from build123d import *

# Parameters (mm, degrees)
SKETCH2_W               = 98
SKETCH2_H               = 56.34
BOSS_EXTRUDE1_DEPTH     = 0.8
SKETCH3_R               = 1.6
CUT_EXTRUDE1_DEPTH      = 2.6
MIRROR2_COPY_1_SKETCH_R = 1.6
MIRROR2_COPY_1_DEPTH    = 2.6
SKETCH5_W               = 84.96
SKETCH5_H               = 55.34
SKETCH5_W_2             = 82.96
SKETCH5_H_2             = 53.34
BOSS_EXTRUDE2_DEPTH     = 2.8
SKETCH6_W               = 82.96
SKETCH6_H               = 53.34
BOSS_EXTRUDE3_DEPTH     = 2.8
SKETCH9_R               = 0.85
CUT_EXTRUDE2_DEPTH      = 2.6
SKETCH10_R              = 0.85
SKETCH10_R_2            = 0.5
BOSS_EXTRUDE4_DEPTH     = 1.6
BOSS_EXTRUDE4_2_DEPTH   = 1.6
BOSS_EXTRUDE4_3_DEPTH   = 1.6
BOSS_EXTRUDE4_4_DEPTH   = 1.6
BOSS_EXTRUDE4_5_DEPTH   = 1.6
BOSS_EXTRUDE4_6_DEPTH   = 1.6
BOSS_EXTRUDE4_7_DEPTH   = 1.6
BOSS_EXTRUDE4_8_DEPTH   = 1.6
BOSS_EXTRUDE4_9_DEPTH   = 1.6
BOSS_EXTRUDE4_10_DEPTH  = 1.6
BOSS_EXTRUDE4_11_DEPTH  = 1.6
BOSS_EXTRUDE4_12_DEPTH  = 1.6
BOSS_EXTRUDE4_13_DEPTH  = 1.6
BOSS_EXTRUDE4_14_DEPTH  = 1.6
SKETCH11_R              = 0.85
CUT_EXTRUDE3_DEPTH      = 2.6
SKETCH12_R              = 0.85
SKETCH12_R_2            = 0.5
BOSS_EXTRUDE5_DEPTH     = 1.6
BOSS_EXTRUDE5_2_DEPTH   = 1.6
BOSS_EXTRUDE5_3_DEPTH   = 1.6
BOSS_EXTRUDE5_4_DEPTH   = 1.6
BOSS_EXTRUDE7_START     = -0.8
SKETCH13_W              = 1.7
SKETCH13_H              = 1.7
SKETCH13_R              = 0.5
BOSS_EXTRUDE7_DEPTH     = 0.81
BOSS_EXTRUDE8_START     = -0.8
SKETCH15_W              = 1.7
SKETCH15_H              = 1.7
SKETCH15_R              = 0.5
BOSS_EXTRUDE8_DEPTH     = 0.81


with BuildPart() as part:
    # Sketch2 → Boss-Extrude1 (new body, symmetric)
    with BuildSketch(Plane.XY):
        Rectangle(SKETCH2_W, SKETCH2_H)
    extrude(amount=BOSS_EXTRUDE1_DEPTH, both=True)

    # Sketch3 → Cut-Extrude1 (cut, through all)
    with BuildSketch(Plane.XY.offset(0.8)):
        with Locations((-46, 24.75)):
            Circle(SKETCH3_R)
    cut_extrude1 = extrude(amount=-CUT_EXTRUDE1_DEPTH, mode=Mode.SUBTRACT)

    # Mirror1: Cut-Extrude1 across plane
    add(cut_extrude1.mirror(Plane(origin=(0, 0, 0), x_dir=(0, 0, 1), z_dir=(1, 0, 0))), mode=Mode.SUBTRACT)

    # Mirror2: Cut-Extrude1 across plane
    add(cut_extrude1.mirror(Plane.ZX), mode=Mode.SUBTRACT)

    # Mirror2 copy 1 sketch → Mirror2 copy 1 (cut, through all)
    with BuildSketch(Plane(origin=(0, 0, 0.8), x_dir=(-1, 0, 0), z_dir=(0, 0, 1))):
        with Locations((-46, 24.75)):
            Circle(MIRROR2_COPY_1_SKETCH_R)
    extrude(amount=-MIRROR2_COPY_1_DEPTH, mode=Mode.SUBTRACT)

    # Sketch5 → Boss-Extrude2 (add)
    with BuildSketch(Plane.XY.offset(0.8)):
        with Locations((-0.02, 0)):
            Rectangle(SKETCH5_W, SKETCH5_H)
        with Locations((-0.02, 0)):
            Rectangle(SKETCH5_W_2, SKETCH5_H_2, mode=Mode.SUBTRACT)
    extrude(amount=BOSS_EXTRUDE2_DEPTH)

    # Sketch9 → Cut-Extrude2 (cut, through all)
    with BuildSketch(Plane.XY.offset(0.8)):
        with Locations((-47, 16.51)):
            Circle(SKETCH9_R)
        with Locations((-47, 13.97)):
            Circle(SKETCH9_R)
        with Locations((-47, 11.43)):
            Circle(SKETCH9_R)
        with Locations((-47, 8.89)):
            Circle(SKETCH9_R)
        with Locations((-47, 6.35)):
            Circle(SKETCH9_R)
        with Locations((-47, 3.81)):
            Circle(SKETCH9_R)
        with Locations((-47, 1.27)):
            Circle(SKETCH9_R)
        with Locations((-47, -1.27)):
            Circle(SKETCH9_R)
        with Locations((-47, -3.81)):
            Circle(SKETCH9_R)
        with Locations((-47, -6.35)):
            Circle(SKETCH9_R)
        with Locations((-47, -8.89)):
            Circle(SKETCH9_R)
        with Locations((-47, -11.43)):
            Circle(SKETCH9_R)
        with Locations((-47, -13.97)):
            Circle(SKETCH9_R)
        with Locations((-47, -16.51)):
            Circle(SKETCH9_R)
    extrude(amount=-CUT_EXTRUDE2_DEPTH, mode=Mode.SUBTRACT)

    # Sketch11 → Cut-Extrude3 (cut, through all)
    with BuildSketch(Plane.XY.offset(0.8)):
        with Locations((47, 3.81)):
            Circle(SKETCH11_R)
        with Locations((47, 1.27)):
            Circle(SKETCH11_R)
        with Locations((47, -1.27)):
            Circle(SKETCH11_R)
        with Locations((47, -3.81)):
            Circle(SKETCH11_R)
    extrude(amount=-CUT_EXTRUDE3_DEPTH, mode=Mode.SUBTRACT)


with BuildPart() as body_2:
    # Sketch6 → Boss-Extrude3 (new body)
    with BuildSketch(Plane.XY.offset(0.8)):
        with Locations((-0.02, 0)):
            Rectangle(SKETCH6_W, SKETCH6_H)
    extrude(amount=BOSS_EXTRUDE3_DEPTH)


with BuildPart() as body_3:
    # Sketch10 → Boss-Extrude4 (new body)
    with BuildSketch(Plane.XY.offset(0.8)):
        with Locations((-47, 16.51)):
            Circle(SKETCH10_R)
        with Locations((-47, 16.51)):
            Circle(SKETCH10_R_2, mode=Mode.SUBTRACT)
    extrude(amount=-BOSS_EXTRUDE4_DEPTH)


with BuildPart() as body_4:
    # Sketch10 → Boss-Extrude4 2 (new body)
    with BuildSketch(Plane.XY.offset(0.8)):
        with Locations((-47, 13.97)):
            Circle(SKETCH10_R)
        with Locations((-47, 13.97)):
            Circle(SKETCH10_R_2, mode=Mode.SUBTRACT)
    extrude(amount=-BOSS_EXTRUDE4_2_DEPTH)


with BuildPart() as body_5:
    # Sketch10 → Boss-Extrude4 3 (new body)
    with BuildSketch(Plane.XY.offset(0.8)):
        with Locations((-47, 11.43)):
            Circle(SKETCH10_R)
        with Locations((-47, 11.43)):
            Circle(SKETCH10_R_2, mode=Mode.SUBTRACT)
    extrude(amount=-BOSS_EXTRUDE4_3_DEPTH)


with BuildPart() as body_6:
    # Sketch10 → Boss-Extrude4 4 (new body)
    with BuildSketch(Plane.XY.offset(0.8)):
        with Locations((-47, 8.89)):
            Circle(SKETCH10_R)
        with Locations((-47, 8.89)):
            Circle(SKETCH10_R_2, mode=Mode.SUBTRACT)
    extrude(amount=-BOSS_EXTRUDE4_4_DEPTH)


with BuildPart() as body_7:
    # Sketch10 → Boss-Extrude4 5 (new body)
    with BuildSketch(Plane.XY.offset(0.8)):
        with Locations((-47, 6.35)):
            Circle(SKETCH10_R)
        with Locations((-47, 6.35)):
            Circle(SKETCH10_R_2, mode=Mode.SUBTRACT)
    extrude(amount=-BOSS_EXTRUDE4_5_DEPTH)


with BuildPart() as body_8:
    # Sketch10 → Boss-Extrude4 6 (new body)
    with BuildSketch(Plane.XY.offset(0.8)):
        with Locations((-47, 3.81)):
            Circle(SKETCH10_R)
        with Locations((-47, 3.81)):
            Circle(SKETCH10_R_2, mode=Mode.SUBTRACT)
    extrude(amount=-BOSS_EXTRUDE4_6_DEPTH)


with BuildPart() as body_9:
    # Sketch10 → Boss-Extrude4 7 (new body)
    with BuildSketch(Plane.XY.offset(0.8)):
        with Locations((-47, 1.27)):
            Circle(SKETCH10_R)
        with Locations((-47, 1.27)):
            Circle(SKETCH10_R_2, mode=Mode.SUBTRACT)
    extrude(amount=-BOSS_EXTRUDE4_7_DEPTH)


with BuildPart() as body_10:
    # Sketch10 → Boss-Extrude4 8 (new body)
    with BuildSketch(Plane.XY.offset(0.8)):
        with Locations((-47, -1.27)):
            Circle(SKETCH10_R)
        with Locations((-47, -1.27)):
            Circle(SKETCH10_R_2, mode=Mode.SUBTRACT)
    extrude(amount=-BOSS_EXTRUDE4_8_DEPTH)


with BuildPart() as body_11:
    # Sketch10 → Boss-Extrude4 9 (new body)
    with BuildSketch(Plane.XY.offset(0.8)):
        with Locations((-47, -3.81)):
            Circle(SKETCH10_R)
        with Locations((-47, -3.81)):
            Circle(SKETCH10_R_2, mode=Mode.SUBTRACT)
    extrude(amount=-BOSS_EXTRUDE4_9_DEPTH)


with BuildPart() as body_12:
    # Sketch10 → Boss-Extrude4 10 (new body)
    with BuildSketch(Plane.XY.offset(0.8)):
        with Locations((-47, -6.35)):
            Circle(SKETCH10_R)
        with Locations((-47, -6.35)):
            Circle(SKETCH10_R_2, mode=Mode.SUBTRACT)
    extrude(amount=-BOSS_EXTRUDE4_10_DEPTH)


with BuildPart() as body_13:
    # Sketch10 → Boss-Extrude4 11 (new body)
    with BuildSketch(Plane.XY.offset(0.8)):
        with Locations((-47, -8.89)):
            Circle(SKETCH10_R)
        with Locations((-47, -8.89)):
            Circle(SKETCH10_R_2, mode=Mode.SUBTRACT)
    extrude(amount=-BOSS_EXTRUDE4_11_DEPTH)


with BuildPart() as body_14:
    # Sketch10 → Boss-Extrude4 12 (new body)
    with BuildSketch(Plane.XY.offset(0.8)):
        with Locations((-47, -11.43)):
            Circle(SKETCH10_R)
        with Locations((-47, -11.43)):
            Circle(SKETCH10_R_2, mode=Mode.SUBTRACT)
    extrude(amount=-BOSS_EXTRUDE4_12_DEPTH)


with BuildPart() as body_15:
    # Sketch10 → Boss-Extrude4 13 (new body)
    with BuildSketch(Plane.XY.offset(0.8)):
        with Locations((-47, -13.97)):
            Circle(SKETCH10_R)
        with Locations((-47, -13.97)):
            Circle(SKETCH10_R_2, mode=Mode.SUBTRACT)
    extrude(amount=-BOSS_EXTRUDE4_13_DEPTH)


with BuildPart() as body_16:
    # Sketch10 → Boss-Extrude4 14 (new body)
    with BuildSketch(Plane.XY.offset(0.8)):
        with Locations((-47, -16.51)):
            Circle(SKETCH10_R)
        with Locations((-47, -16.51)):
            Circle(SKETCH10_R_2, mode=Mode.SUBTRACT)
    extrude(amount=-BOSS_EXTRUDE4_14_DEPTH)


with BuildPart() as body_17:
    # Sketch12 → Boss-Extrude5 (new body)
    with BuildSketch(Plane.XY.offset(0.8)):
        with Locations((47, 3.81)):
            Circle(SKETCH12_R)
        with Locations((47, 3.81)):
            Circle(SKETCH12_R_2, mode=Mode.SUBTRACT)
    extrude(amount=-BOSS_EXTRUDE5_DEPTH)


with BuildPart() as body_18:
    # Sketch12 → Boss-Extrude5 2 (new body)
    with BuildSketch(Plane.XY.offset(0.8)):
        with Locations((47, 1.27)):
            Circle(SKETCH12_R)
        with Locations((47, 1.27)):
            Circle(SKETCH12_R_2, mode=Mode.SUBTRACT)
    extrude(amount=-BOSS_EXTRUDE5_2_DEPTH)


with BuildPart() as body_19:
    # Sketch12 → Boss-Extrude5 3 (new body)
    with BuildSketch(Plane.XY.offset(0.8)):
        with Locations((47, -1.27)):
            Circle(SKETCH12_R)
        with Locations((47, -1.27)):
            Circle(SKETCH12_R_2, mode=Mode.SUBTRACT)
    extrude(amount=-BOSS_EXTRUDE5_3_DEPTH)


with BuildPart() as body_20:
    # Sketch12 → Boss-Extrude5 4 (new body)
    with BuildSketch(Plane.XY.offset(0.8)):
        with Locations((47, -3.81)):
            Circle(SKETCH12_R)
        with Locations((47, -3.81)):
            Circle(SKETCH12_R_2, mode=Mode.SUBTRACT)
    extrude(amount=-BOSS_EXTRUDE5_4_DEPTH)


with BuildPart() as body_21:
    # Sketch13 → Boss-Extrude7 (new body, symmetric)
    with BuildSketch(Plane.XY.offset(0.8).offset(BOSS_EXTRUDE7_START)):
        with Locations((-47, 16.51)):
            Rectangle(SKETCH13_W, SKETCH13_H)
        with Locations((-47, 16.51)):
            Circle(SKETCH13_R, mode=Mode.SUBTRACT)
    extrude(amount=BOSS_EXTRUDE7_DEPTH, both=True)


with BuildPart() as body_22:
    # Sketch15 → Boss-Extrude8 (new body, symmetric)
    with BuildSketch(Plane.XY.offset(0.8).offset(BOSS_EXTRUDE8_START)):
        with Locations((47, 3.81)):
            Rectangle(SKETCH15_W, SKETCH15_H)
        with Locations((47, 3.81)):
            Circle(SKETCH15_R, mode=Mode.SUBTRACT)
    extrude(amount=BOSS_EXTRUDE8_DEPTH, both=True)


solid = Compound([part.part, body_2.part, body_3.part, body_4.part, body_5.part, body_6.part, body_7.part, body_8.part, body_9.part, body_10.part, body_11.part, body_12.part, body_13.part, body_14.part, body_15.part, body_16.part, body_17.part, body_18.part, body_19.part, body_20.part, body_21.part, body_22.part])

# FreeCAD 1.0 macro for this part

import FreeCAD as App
import Part
import Sketcher
from FreeCAD import Vector


def add_polygon(sketch, points):
    """Adds a closed chain of lines whose ends are joined by coincident constraints."""
    first, n = sketch.GeometryCount, len(points)
    for a, b in zip(points, points[1:] + points[:1]):
        sketch.addGeometry(Part.LineSegment(App.Vector(*a, 0), App.Vector(*b, 0)), False)
    for i in range(n):
        sketch.addConstraint(Sketcher.Constraint("Coincident", first + i, 2, first + (i + 1) % n, 1))

doc = App.newDocument("Part")
body = doc.addObject("PartDesign::Body", "Body")

# Sketch on XY plane
sketch1 = body.newObject("Sketcher::SketchObject", "Sketch")
sketch1.AttachmentSupport = (doc.getObject("XY_Plane"), [""])
sketch1.MapMode = "FlatFace"
add_polygon(sketch1, [(-49, 28), (-49, -28), (49, -28), (49, 28)])  # lines 0-3
sketch1.addConstraint(Sketcher.Constraint("Vertical", 0))
sketch1.addConstraint(Sketcher.Constraint("Horizontal", 1))
sketch1.addConstraint(Sketcher.Constraint("Vertical", 2))
sketch1.addConstraint(Sketcher.Constraint("Horizontal", 3))
sketch1.addConstraint(Sketcher.Constraint("Symmetric", 0, 2, 2, 2, -1, 1))
sketch1.addConstraint(Sketcher.Constraint("DistanceX", 1, 1, 1, 2, 98.0))
sketch1.addConstraint(Sketcher.Constraint("DistanceY", 0, 2, 0, 1, 56.34))
pad1 = body.newObject("PartDesign::Pad", "Pad")
pad1.Profile = sketch1
pad1.Length = 1.6
pad1.Midplane = True

# Sketch on XY plane
sketch2 = body.newObject("Sketcher::SketchObject", "Sketch001")
sketch2.AttachmentSupport = (doc.getObject("XY_Plane"), [""])
sketch2.MapMode = "FlatFace"
sketch2.AttachmentOffset = App.Placement(Vector(0, 0, 0.8), App.Rotation())
sketch2.addGeometry(Part.Circle(Vector(-46, 24.8, 0), Vector(0, 0, 1), 1.6), False)
sketch2.addConstraint(Sketcher.Constraint("Diameter", 0, 3.2))
sketch2.addConstraint(Sketcher.Constraint("DistanceX", 0, 3, -1, 1, 46.0))
sketch2.addConstraint(Sketcher.Constraint("DistanceY", -1, 1, 0, 3, 24.75))
pocket1 = body.newObject("PartDesign::Pocket", "Pocket")
pocket1.Profile = sketch2
pocket1.Type = "ThroughAll"
doc.recompute()

mirrored = body.newObject("PartDesign::Mirrored", "Mirrored")
mirrored.Originals = [pocket1]
mirrored.MirrorPlane = (doc.getObject("YZ_Plane"), [""])
body.Tip = mirrored
doc.recompute()

mirrored2 = body.newObject("PartDesign::Mirrored", "Mirrored001")
mirrored2.Originals = [pocket1]
mirrored2.MirrorPlane = (doc.getObject("XZ_Plane"), [""])
body.Tip = mirrored2

# Sketch on XY plane
sketch3 = body.newObject("Sketcher::SketchObject", "Sketch002")
sketch3.AttachmentSupport = (doc.getObject("XY_Plane"), [""])
sketch3.MapMode = "FlatFace"
sketch3.AttachmentOffset = App.Placement(Vector(0, 0, 0.8), App.Rotation())
sketch3.addGeometry(Part.Circle(Vector(46, -24.8, 0), Vector(0, 0, 1), 1.6), False)
sketch3.addConstraint(Sketcher.Constraint("Diameter", 0, 3.2))
sketch3.addConstraint(Sketcher.Constraint("DistanceX", -1, 1, 0, 3, 46.0))
sketch3.addConstraint(Sketcher.Constraint("DistanceY", 0, 3, -1, 1, 24.75))
pocket2 = body.newObject("PartDesign::Pocket", "Pocket001")
pocket2.Profile = sketch3
pocket2.Type = "ThroughAll"

# Sketch on XY plane
sketch4 = body.newObject("Sketcher::SketchObject", "Sketch003")
sketch4.AttachmentSupport = (doc.getObject("XY_Plane"), [""])
sketch4.MapMode = "FlatFace"
sketch4.AttachmentOffset = App.Placement(Vector(0, 0, 0.8), App.Rotation())
add_polygon(sketch4, [(-42, 28), (-42, -28), (42, -28), (42, 28)])  # lines 0-3
add_polygon(sketch4, [(41, -27), (-42, -27), (-42, 27), (41, 27)])  # lines 4-7
sketch4.addConstraint(Sketcher.Constraint("Vertical", 0))
sketch4.addConstraint(Sketcher.Constraint("Horizontal", 1))
sketch4.addConstraint(Sketcher.Constraint("Vertical", 2))
sketch4.addConstraint(Sketcher.Constraint("Horizontal", 3))
sketch4.addConstraint(Sketcher.Constraint("Horizontal", 4))
sketch4.addConstraint(Sketcher.Constraint("Vertical", 5))
sketch4.addConstraint(Sketcher.Constraint("Horizontal", 6))
sketch4.addConstraint(Sketcher.Constraint("Vertical", 7))
sketch4.addConstraint(Sketcher.Constraint("DistanceX", 0, 2, 4, 2, 1.0))
sketch4.addConstraint(Sketcher.Constraint("DistanceY", 0, 2, 4, 2, 1.0))
sketch4.addConstraint(Sketcher.Constraint("DistanceY", 5, 2, 3, 2, 1.0))
sketch4.addConstraint(Sketcher.Constraint("DistanceX", 6, 2, 2, 2, 1.0))
sketch4.addConstraint(Sketcher.Constraint("DistanceX", 1, 1, 1, 2, 84.96))
sketch4.addConstraint(Sketcher.Constraint("DistanceY", 0, 2, 0, 1, 55.34))
sketch4.addConstraint(Sketcher.Constraint("DistanceX", 0, 2, -1, 1, 42.5))
sketch4.addConstraint(Sketcher.Constraint("DistanceY", 0, 2, -1, 1, 27.67))
pad2 = body.newObject("PartDesign::Pad", "Pad001")
pad2.Profile = sketch4
pad2.Length = 2.8

# Sketch on XY plane
sketch5 = body.newObject("Sketcher::SketchObject", "Sketch004")
sketch5.AttachmentSupport = (doc.getObject("XY_Plane"), [""])
sketch5.MapMode = "FlatFace"
sketch5.AttachmentOffset = App.Placement(Vector(0, 0, 0.8), App.Rotation())
sketch5.addGeometry(Part.Circle(Vector(-47, 16.5, 0), Vector(0, 0, 1), 0.8), False)
sketch5.addGeometry(Part.Circle(Vector(-47, 14, 0), Vector(0, 0, 1), 0.8), False)
sketch5.addGeometry(Part.Circle(Vector(-47, 11.4, 0), Vector(0, 0, 1), 0.8), False)
sketch5.addGeometry(Part.Circle(Vector(-47, 8.9, 0), Vector(0, 0, 1), 0.8), False)
sketch5.addGeometry(Part.Circle(Vector(-47, 6.3, 0), Vector(0, 0, 1), 0.8), False)
sketch5.addGeometry(Part.Circle(Vector(-47, 3.8, 0), Vector(0, 0, 1), 0.8), False)
sketch5.addGeometry(Part.Circle(Vector(-47, 1.3, 0), Vector(0, 0, 1), 0.8), False)
sketch5.addGeometry(Part.Circle(Vector(-47, -1.3, 0), Vector(0, 0, 1), 0.8), False)
sketch5.addGeometry(Part.Circle(Vector(-47, -3.8, 0), Vector(0, 0, 1), 0.8), False)
sketch5.addGeometry(Part.Circle(Vector(-47, -6.3, 0), Vector(0, 0, 1), 0.8), False)
sketch5.addGeometry(Part.Circle(Vector(-47, -8.9, 0), Vector(0, 0, 1), 0.8), False)
sketch5.addGeometry(Part.Circle(Vector(-47, -11.4, 0), Vector(0, 0, 1), 0.8), False)
sketch5.addGeometry(Part.Circle(Vector(-47, -14, 0), Vector(0, 0, 1), 0.8), False)
sketch5.addGeometry(Part.Circle(Vector(-47, -16.5, 0), Vector(0, 0, 1), 0.8), False)
sketch5.addConstraint(Sketcher.Constraint("Equal", 0, 1))
sketch5.addConstraint(Sketcher.Constraint("Equal", 1, 2))
sketch5.addConstraint(Sketcher.Constraint("Equal", 2, 3))
sketch5.addConstraint(Sketcher.Constraint("Equal", 3, 4))
sketch5.addConstraint(Sketcher.Constraint("Equal", 4, 5))
sketch5.addConstraint(Sketcher.Constraint("Equal", 5, 6))
sketch5.addConstraint(Sketcher.Constraint("Equal", 6, 7))
sketch5.addConstraint(Sketcher.Constraint("Equal", 7, 8))
sketch5.addConstraint(Sketcher.Constraint("Equal", 8, 9))
sketch5.addConstraint(Sketcher.Constraint("Equal", 9, 10))
sketch5.addConstraint(Sketcher.Constraint("Equal", 10, 11))
sketch5.addConstraint(Sketcher.Constraint("Equal", 11, 12))
sketch5.addConstraint(Sketcher.Constraint("Equal", 12, 13))
sketch5.addConstraint(Sketcher.Constraint("Symmetric", 6, 3, 7, 3, -1))
sketch5.addConstraint(Sketcher.Constraint("Symmetric", 5, 3, 8, 3, -1))
sketch5.addConstraint(Sketcher.Constraint("Symmetric", 4, 3, 9, 3, -1))
sketch5.addConstraint(Sketcher.Constraint("Symmetric", 3, 3, 10, 3, -1))
sketch5.addConstraint(Sketcher.Constraint("Symmetric", 2, 3, 11, 3, -1))
sketch5.addConstraint(Sketcher.Constraint("Symmetric", 1, 3, 12, 3, -1))
sketch5.addConstraint(Sketcher.Constraint("Symmetric", 0, 3, 13, 3, -1))
sketch5.addConstraint(Sketcher.Constraint("Vertical", 0, 3, 1, 3))
sketch5.addConstraint(Sketcher.Constraint("Vertical", 1, 3, 2, 3))
sketch5.addConstraint(Sketcher.Constraint("Vertical", 2, 3, 3, 3))
sketch5.addConstraint(Sketcher.Constraint("Vertical", 3, 3, 4, 3))
sketch5.addConstraint(Sketcher.Constraint("Vertical", 4, 3, 5, 3))
sketch5.addConstraint(Sketcher.Constraint("Vertical", 5, 3, 6, 3))
sketch5.addConstraint(Sketcher.Constraint("Diameter", 0, 1.7))
sketch5.addConstraint(Sketcher.Constraint("DistanceX", 0, 3, -1, 1, 47.0))
sketch5.addConstraint(Sketcher.Constraint("DistanceY", 5, 3, 0, 3, 12.7))
sketch5.addConstraint(Sketcher.Constraint("DistanceY", 6, 3, 1, 3, 12.7))
sketch5.addConstraint(Sketcher.Constraint("DistanceY", 7, 3, 2, 3, 12.7))
sketch5.addConstraint(Sketcher.Constraint("DistanceY", 8, 3, 3, 3, 12.7))
sketch5.addConstraint(Sketcher.Constraint("DistanceY", 9, 3, 4, 3, 12.7))
sketch5.addConstraint(Sketcher.Constraint("DistanceY", -1, 1, 0, 3, 16.51))
sketch5.addConstraint(Sketcher.Constraint("DistanceY", -1, 1, 1, 3, 13.97))
pocket3 = body.newObject("PartDesign::Pocket", "Pocket002")
pocket3.Profile = sketch5
pocket3.Type = "ThroughAll"

# Sketch on XY plane
sketch6 = body.newObject("Sketcher::SketchObject", "Sketch005")
sketch6.AttachmentSupport = (doc.getObject("XY_Plane"), [""])
sketch6.MapMode = "FlatFace"
sketch6.AttachmentOffset = App.Placement(Vector(0, 0, 0.8), App.Rotation())
sketch6.addGeometry(Part.Circle(Vector(47, 3.8, 0), Vector(0, 0, 1), 0.8), False)
sketch6.addGeometry(Part.Circle(Vector(47, 1.3, 0), Vector(0, 0, 1), 0.8), False)
sketch6.addGeometry(Part.Circle(Vector(47, -1.3, 0), Vector(0, 0, 1), 0.8), False)
sketch6.addGeometry(Part.Circle(Vector(47, -3.8, 0), Vector(0, 0, 1), 0.8), False)
sketch6.addConstraint(Sketcher.Constraint("Equal", 0, 1))
sketch6.addConstraint(Sketcher.Constraint("Equal", 1, 2))
sketch6.addConstraint(Sketcher.Constraint("Equal", 2, 3))
sketch6.addConstraint(Sketcher.Constraint("Symmetric", 1, 3, 2, 3, -1))
sketch6.addConstraint(Sketcher.Constraint("Symmetric", 0, 3, 3, 3, -1))
sketch6.addConstraint(Sketcher.Constraint("Vertical", 0, 3, 1, 3))
sketch6.addConstraint(Sketcher.Constraint("Diameter", 0, 1.7))
sketch6.addConstraint(Sketcher.Constraint("DistanceX", -1, 1, 0, 3, 47.0))
sketch6.addConstraint(Sketcher.Constraint("DistanceY", -1, 1, 0, 3, 3.81))
sketch6.addConstraint(Sketcher.Constraint("DistanceY", -1, 1, 1, 3, 1.27))
pocket4 = body.newObject("PartDesign::Pocket", "Pocket003")
pocket4.Profile = sketch6
pocket4.Type = "ThroughAll"
body2 = doc.addObject("PartDesign::Body", "Body001")

# Sketch on XY plane
sketch7 = body2.newObject("Sketcher::SketchObject", "Sketch006")
sketch7.AttachmentSupport = (doc.getObject("XY_Plane001"), [""])
sketch7.MapMode = "FlatFace"
sketch7.AttachmentOffset = App.Placement(Vector(0, 0, 0.8), App.Rotation())
add_polygon(sketch7, [(-42, 27), (-42, -27), (41, -27), (41, 27)])  # lines 0-3
sketch7.addConstraint(Sketcher.Constraint("Vertical", 0))
sketch7.addConstraint(Sketcher.Constraint("Horizontal", 1))
sketch7.addConstraint(Sketcher.Constraint("Vertical", 2))
sketch7.addConstraint(Sketcher.Constraint("Horizontal", 3))
sketch7.addConstraint(Sketcher.Constraint("DistanceX", 1, 1, 1, 2, 82.96))
sketch7.addConstraint(Sketcher.Constraint("DistanceY", 0, 2, 0, 1, 53.34))
sketch7.addConstraint(Sketcher.Constraint("DistanceX", 0, 2, -1, 1, 41.5))
sketch7.addConstraint(Sketcher.Constraint("DistanceY", 0, 2, -1, 1, 26.67))
pad3 = body2.newObject("PartDesign::Pad", "Pad002")
pad3.Profile = sketch7
pad3.Length = 2.8
body3 = doc.addObject("PartDesign::Body", "Body002")

# Sketch on XY plane
sketch8 = body3.newObject("Sketcher::SketchObject", "Sketch007")
sketch8.AttachmentSupport = (doc.getObject("XY_Plane002"), [""])
sketch8.MapMode = "FlatFace"
sketch8.AttachmentOffset = App.Placement(Vector(0, 0, 0.8), App.Rotation())
sketch8.addGeometry(Part.Circle(Vector(-47, 16.5, 0), Vector(0, 0, 1), 0.8), False)
sketch8.addGeometry(Part.Circle(Vector(-47, 16.5, 0), Vector(0, 0, 1), 0.5), False)
sketch8.addConstraint(Sketcher.Constraint("Coincident", 1, 3, 0, 3))
sketch8.addConstraint(Sketcher.Constraint("Diameter", 1, 1.0))
sketch8.addConstraint(Sketcher.Constraint("Diameter", 0, 1.7))
sketch8.addConstraint(Sketcher.Constraint("DistanceX", 0, 3, -1, 1, 47.0))
sketch8.addConstraint(Sketcher.Constraint("DistanceY", -1, 1, 0, 3, 16.51))
pad4 = body3.newObject("PartDesign::Pad", "Pad003")
pad4.Profile = sketch8
pad4.Length = 1.6
pad4.Reversed = True
body4 = doc.addObject("PartDesign::Body", "Body003")

# Sketch on XY plane
sketch9 = body4.newObject("Sketcher::SketchObject", "Sketch008")
sketch9.AttachmentSupport = (doc.getObject("XY_Plane003"), [""])
sketch9.MapMode = "FlatFace"
sketch9.AttachmentOffset = App.Placement(Vector(0, 0, 0.8), App.Rotation())
sketch9.addGeometry(Part.Circle(Vector(-47, 14, 0), Vector(0, 0, 1), 0.8), False)
sketch9.addGeometry(Part.Circle(Vector(-47, 14, 0), Vector(0, 0, 1), 0.5), False)
sketch9.addConstraint(Sketcher.Constraint("Coincident", 1, 3, 0, 3))
sketch9.addConstraint(Sketcher.Constraint("Diameter", 1, 1.0))
sketch9.addConstraint(Sketcher.Constraint("Diameter", 0, 1.7))
sketch9.addConstraint(Sketcher.Constraint("DistanceX", 0, 3, -1, 1, 47.0))
sketch9.addConstraint(Sketcher.Constraint("DistanceY", -1, 1, 0, 3, 13.97))
pad5 = body4.newObject("PartDesign::Pad", "Pad004")
pad5.Profile = sketch9
pad5.Length = 1.6
pad5.Reversed = True
body5 = doc.addObject("PartDesign::Body", "Body004")

# Sketch on XY plane
sketch10 = body5.newObject("Sketcher::SketchObject", "Sketch009")
sketch10.AttachmentSupport = (doc.getObject("XY_Plane004"), [""])
sketch10.MapMode = "FlatFace"
sketch10.AttachmentOffset = App.Placement(Vector(0, 0, 0.8), App.Rotation())
sketch10.addGeometry(Part.Circle(Vector(-47, 11.4, 0), Vector(0, 0, 1), 0.8), False)
sketch10.addGeometry(Part.Circle(Vector(-47, 11.4, 0), Vector(0, 0, 1), 0.5), False)
sketch10.addConstraint(Sketcher.Constraint("Coincident", 1, 3, 0, 3))
sketch10.addConstraint(Sketcher.Constraint("Diameter", 1, 1.0))
sketch10.addConstraint(Sketcher.Constraint("Diameter", 0, 1.7))
sketch10.addConstraint(Sketcher.Constraint("DistanceX", 0, 3, -1, 1, 47.0))
sketch10.addConstraint(Sketcher.Constraint("DistanceY", -1, 1, 0, 3, 11.43))
pad6 = body5.newObject("PartDesign::Pad", "Pad005")
pad6.Profile = sketch10
pad6.Length = 1.6
pad6.Reversed = True
body6 = doc.addObject("PartDesign::Body", "Body005")

# Sketch on XY plane
sketch11 = body6.newObject("Sketcher::SketchObject", "Sketch010")
sketch11.AttachmentSupport = (doc.getObject("XY_Plane005"), [""])
sketch11.MapMode = "FlatFace"
sketch11.AttachmentOffset = App.Placement(Vector(0, 0, 0.8), App.Rotation())
sketch11.addGeometry(Part.Circle(Vector(-47, 8.9, 0), Vector(0, 0, 1), 0.8), False)
sketch11.addGeometry(Part.Circle(Vector(-47, 8.9, 0), Vector(0, 0, 1), 0.5), False)
sketch11.addConstraint(Sketcher.Constraint("Coincident", 1, 3, 0, 3))
sketch11.addConstraint(Sketcher.Constraint("Diameter", 1, 1.0))
sketch11.addConstraint(Sketcher.Constraint("Diameter", 0, 1.7))
sketch11.addConstraint(Sketcher.Constraint("DistanceX", 0, 3, -1, 1, 47.0))
sketch11.addConstraint(Sketcher.Constraint("DistanceY", -1, 1, 0, 3, 8.89))
pad7 = body6.newObject("PartDesign::Pad", "Pad006")
pad7.Profile = sketch11
pad7.Length = 1.6
pad7.Reversed = True
body7 = doc.addObject("PartDesign::Body", "Body006")

# Sketch on XY plane
sketch12 = body7.newObject("Sketcher::SketchObject", "Sketch011")
sketch12.AttachmentSupport = (doc.getObject("XY_Plane006"), [""])
sketch12.MapMode = "FlatFace"
sketch12.AttachmentOffset = App.Placement(Vector(0, 0, 0.8), App.Rotation())
sketch12.addGeometry(Part.Circle(Vector(-47, 6.3, 0), Vector(0, 0, 1), 0.8), False)
sketch12.addGeometry(Part.Circle(Vector(-47, 6.3, 0), Vector(0, 0, 1), 0.5), False)
sketch12.addConstraint(Sketcher.Constraint("Coincident", 1, 3, 0, 3))
sketch12.addConstraint(Sketcher.Constraint("Diameter", 1, 1.0))
sketch12.addConstraint(Sketcher.Constraint("Diameter", 0, 1.7))
sketch12.addConstraint(Sketcher.Constraint("DistanceX", 0, 3, -1, 1, 47.0))
sketch12.addConstraint(Sketcher.Constraint("DistanceY", -1, 1, 0, 3, 6.35))
pad8 = body7.newObject("PartDesign::Pad", "Pad007")
pad8.Profile = sketch12
pad8.Length = 1.6
pad8.Reversed = True
body8 = doc.addObject("PartDesign::Body", "Body007")

# Sketch on XY plane
sketch13 = body8.newObject("Sketcher::SketchObject", "Sketch012")
sketch13.AttachmentSupport = (doc.getObject("XY_Plane007"), [""])
sketch13.MapMode = "FlatFace"
sketch13.AttachmentOffset = App.Placement(Vector(0, 0, 0.8), App.Rotation())
sketch13.addGeometry(Part.Circle(Vector(-47, 3.8, 0), Vector(0, 0, 1), 0.8), False)
sketch13.addGeometry(Part.Circle(Vector(-47, 3.8, 0), Vector(0, 0, 1), 0.5), False)
sketch13.addConstraint(Sketcher.Constraint("Coincident", 1, 3, 0, 3))
sketch13.addConstraint(Sketcher.Constraint("Diameter", 1, 1.0))
sketch13.addConstraint(Sketcher.Constraint("Diameter", 0, 1.7))
sketch13.addConstraint(Sketcher.Constraint("DistanceX", 0, 3, -1, 1, 47.0))
sketch13.addConstraint(Sketcher.Constraint("DistanceY", -1, 1, 0, 3, 3.81))
pad9 = body8.newObject("PartDesign::Pad", "Pad008")
pad9.Profile = sketch13
pad9.Length = 1.6
pad9.Reversed = True
body9 = doc.addObject("PartDesign::Body", "Body008")

# Sketch on XY plane
sketch14 = body9.newObject("Sketcher::SketchObject", "Sketch013")
sketch14.AttachmentSupport = (doc.getObject("XY_Plane008"), [""])
sketch14.MapMode = "FlatFace"
sketch14.AttachmentOffset = App.Placement(Vector(0, 0, 0.8), App.Rotation())
sketch14.addGeometry(Part.Circle(Vector(-47, 1.3, 0), Vector(0, 0, 1), 0.8), False)
sketch14.addGeometry(Part.Circle(Vector(-47, 1.3, 0), Vector(0, 0, 1), 0.5), False)
sketch14.addConstraint(Sketcher.Constraint("Coincident", 1, 3, 0, 3))
sketch14.addConstraint(Sketcher.Constraint("Diameter", 1, 1.0))
sketch14.addConstraint(Sketcher.Constraint("Diameter", 0, 1.7))
sketch14.addConstraint(Sketcher.Constraint("DistanceX", 0, 3, -1, 1, 47.0))
sketch14.addConstraint(Sketcher.Constraint("DistanceY", -1, 1, 0, 3, 1.27))
pad10 = body9.newObject("PartDesign::Pad", "Pad009")
pad10.Profile = sketch14
pad10.Length = 1.6
pad10.Reversed = True
body10 = doc.addObject("PartDesign::Body", "Body009")

# Sketch on XY plane
sketch15 = body10.newObject("Sketcher::SketchObject", "Sketch014")
sketch15.AttachmentSupport = (doc.getObject("XY_Plane009"), [""])
sketch15.MapMode = "FlatFace"
sketch15.AttachmentOffset = App.Placement(Vector(0, 0, 0.8), App.Rotation())
sketch15.addGeometry(Part.Circle(Vector(-47, -1.3, 0), Vector(0, 0, 1), 0.8), False)
sketch15.addGeometry(Part.Circle(Vector(-47, -1.3, 0), Vector(0, 0, 1), 0.5), False)
sketch15.addConstraint(Sketcher.Constraint("Coincident", 1, 3, 0, 3))
sketch15.addConstraint(Sketcher.Constraint("Diameter", 1, 1.0))
sketch15.addConstraint(Sketcher.Constraint("Diameter", 0, 1.7))
sketch15.addConstraint(Sketcher.Constraint("DistanceX", 0, 3, -1, 1, 47.0))
sketch15.addConstraint(Sketcher.Constraint("DistanceY", 0, 3, -1, 1, 1.27))
pad11 = body10.newObject("PartDesign::Pad", "Pad010")
pad11.Profile = sketch15
pad11.Length = 1.6
pad11.Reversed = True
body11 = doc.addObject("PartDesign::Body", "Body010")

# Sketch on XY plane
sketch16 = body11.newObject("Sketcher::SketchObject", "Sketch015")
sketch16.AttachmentSupport = (doc.getObject("XY_Plane010"), [""])
sketch16.MapMode = "FlatFace"
sketch16.AttachmentOffset = App.Placement(Vector(0, 0, 0.8), App.Rotation())
sketch16.addGeometry(Part.Circle(Vector(-47, -3.8, 0), Vector(0, 0, 1), 0.8), False)
sketch16.addGeometry(Part.Circle(Vector(-47, -3.8, 0), Vector(0, 0, 1), 0.5), False)
sketch16.addConstraint(Sketcher.Constraint("Coincident", 1, 3, 0, 3))
sketch16.addConstraint(Sketcher.Constraint("Diameter", 1, 1.0))
sketch16.addConstraint(Sketcher.Constraint("Diameter", 0, 1.7))
sketch16.addConstraint(Sketcher.Constraint("DistanceX", 0, 3, -1, 1, 47.0))
sketch16.addConstraint(Sketcher.Constraint("DistanceY", 0, 3, -1, 1, 3.81))
pad12 = body11.newObject("PartDesign::Pad", "Pad011")
pad12.Profile = sketch16
pad12.Length = 1.6
pad12.Reversed = True
body12 = doc.addObject("PartDesign::Body", "Body011")

# Sketch on XY plane
sketch17 = body12.newObject("Sketcher::SketchObject", "Sketch016")
sketch17.AttachmentSupport = (doc.getObject("XY_Plane011"), [""])
sketch17.MapMode = "FlatFace"
sketch17.AttachmentOffset = App.Placement(Vector(0, 0, 0.8), App.Rotation())
sketch17.addGeometry(Part.Circle(Vector(-47, -6.3, 0), Vector(0, 0, 1), 0.8), False)
sketch17.addGeometry(Part.Circle(Vector(-47, -6.3, 0), Vector(0, 0, 1), 0.5), False)
sketch17.addConstraint(Sketcher.Constraint("Coincident", 1, 3, 0, 3))
sketch17.addConstraint(Sketcher.Constraint("Diameter", 1, 1.0))
sketch17.addConstraint(Sketcher.Constraint("Diameter", 0, 1.7))
sketch17.addConstraint(Sketcher.Constraint("DistanceX", 0, 3, -1, 1, 47.0))
sketch17.addConstraint(Sketcher.Constraint("DistanceY", 0, 3, -1, 1, 6.35))
pad13 = body12.newObject("PartDesign::Pad", "Pad012")
pad13.Profile = sketch17
pad13.Length = 1.6
pad13.Reversed = True
body13 = doc.addObject("PartDesign::Body", "Body012")

# Sketch on XY plane
sketch18 = body13.newObject("Sketcher::SketchObject", "Sketch017")
sketch18.AttachmentSupport = (doc.getObject("XY_Plane012"), [""])
sketch18.MapMode = "FlatFace"
sketch18.AttachmentOffset = App.Placement(Vector(0, 0, 0.8), App.Rotation())
sketch18.addGeometry(Part.Circle(Vector(-47, -8.9, 0), Vector(0, 0, 1), 0.8), False)
sketch18.addGeometry(Part.Circle(Vector(-47, -8.9, 0), Vector(0, 0, 1), 0.5), False)
sketch18.addConstraint(Sketcher.Constraint("Coincident", 1, 3, 0, 3))
sketch18.addConstraint(Sketcher.Constraint("Diameter", 1, 1.0))
sketch18.addConstraint(Sketcher.Constraint("Diameter", 0, 1.7))
sketch18.addConstraint(Sketcher.Constraint("DistanceX", 0, 3, -1, 1, 47.0))
sketch18.addConstraint(Sketcher.Constraint("DistanceY", 0, 3, -1, 1, 8.89))
pad14 = body13.newObject("PartDesign::Pad", "Pad013")
pad14.Profile = sketch18
pad14.Length = 1.6
pad14.Reversed = True
body14 = doc.addObject("PartDesign::Body", "Body013")

# Sketch on XY plane
sketch19 = body14.newObject("Sketcher::SketchObject", "Sketch018")
sketch19.AttachmentSupport = (doc.getObject("XY_Plane013"), [""])
sketch19.MapMode = "FlatFace"
sketch19.AttachmentOffset = App.Placement(Vector(0, 0, 0.8), App.Rotation())
sketch19.addGeometry(Part.Circle(Vector(-47, -11.4, 0), Vector(0, 0, 1), 0.8), False)
sketch19.addGeometry(Part.Circle(Vector(-47, -11.4, 0), Vector(0, 0, 1), 0.5), False)
sketch19.addConstraint(Sketcher.Constraint("Coincident", 1, 3, 0, 3))
sketch19.addConstraint(Sketcher.Constraint("Diameter", 1, 1.0))
sketch19.addConstraint(Sketcher.Constraint("Diameter", 0, 1.7))
sketch19.addConstraint(Sketcher.Constraint("DistanceX", 0, 3, -1, 1, 47.0))
sketch19.addConstraint(Sketcher.Constraint("DistanceY", 0, 3, -1, 1, 11.43))
pad15 = body14.newObject("PartDesign::Pad", "Pad014")
pad15.Profile = sketch19
pad15.Length = 1.6
pad15.Reversed = True
body15 = doc.addObject("PartDesign::Body", "Body014")

# Sketch on XY plane
sketch20 = body15.newObject("Sketcher::SketchObject", "Sketch019")
sketch20.AttachmentSupport = (doc.getObject("XY_Plane014"), [""])
sketch20.MapMode = "FlatFace"
sketch20.AttachmentOffset = App.Placement(Vector(0, 0, 0.8), App.Rotation())
sketch20.addGeometry(Part.Circle(Vector(-47, -14, 0), Vector(0, 0, 1), 0.8), False)
sketch20.addGeometry(Part.Circle(Vector(-47, -14, 0), Vector(0, 0, 1), 0.5), False)
sketch20.addConstraint(Sketcher.Constraint("Coincident", 1, 3, 0, 3))
sketch20.addConstraint(Sketcher.Constraint("Diameter", 1, 1.0))
sketch20.addConstraint(Sketcher.Constraint("Diameter", 0, 1.7))
sketch20.addConstraint(Sketcher.Constraint("DistanceX", 0, 3, -1, 1, 47.0))
sketch20.addConstraint(Sketcher.Constraint("DistanceY", 0, 3, -1, 1, 13.97))
pad16 = body15.newObject("PartDesign::Pad", "Pad015")
pad16.Profile = sketch20
pad16.Length = 1.6
pad16.Reversed = True
body16 = doc.addObject("PartDesign::Body", "Body015")

# Sketch on XY plane
sketch21 = body16.newObject("Sketcher::SketchObject", "Sketch020")
sketch21.AttachmentSupport = (doc.getObject("XY_Plane015"), [""])
sketch21.MapMode = "FlatFace"
sketch21.AttachmentOffset = App.Placement(Vector(0, 0, 0.8), App.Rotation())
sketch21.addGeometry(Part.Circle(Vector(-47, -16.5, 0), Vector(0, 0, 1), 0.8), False)
sketch21.addGeometry(Part.Circle(Vector(-47, -16.5, 0), Vector(0, 0, 1), 0.5), False)
sketch21.addConstraint(Sketcher.Constraint("Coincident", 1, 3, 0, 3))
sketch21.addConstraint(Sketcher.Constraint("Diameter", 1, 1.0))
sketch21.addConstraint(Sketcher.Constraint("Diameter", 0, 1.7))
sketch21.addConstraint(Sketcher.Constraint("DistanceX", 0, 3, -1, 1, 47.0))
sketch21.addConstraint(Sketcher.Constraint("DistanceY", 0, 3, -1, 1, 16.51))
pad17 = body16.newObject("PartDesign::Pad", "Pad016")
pad17.Profile = sketch21
pad17.Length = 1.6
pad17.Reversed = True
body17 = doc.addObject("PartDesign::Body", "Body016")

# Sketch on XY plane
sketch22 = body17.newObject("Sketcher::SketchObject", "Sketch021")
sketch22.AttachmentSupport = (doc.getObject("XY_Plane016"), [""])
sketch22.MapMode = "FlatFace"
sketch22.AttachmentOffset = App.Placement(Vector(0, 0, 0.8), App.Rotation())
sketch22.addGeometry(Part.Circle(Vector(47, 3.8, 0), Vector(0, 0, 1), 0.8), False)
sketch22.addGeometry(Part.Circle(Vector(47, 3.8, 0), Vector(0, 0, 1), 0.5), False)
sketch22.addConstraint(Sketcher.Constraint("Coincident", 1, 3, 0, 3))
sketch22.addConstraint(Sketcher.Constraint("Diameter", 1, 1.0))
sketch22.addConstraint(Sketcher.Constraint("Diameter", 0, 1.7))
sketch22.addConstraint(Sketcher.Constraint("DistanceX", -1, 1, 0, 3, 47.0))
sketch22.addConstraint(Sketcher.Constraint("DistanceY", -1, 1, 0, 3, 3.81))
pad18 = body17.newObject("PartDesign::Pad", "Pad017")
pad18.Profile = sketch22
pad18.Length = 1.6
pad18.Reversed = True
body18 = doc.addObject("PartDesign::Body", "Body017")

# Sketch on XY plane
sketch23 = body18.newObject("Sketcher::SketchObject", "Sketch022")
sketch23.AttachmentSupport = (doc.getObject("XY_Plane017"), [""])
sketch23.MapMode = "FlatFace"
sketch23.AttachmentOffset = App.Placement(Vector(0, 0, 0.8), App.Rotation())
sketch23.addGeometry(Part.Circle(Vector(47, 1.3, 0), Vector(0, 0, 1), 0.8), False)
sketch23.addGeometry(Part.Circle(Vector(47, 1.3, 0), Vector(0, 0, 1), 0.5), False)
sketch23.addConstraint(Sketcher.Constraint("Coincident", 1, 3, 0, 3))
sketch23.addConstraint(Sketcher.Constraint("Diameter", 1, 1.0))
sketch23.addConstraint(Sketcher.Constraint("Diameter", 0, 1.7))
sketch23.addConstraint(Sketcher.Constraint("DistanceX", -1, 1, 0, 3, 47.0))
sketch23.addConstraint(Sketcher.Constraint("DistanceY", -1, 1, 0, 3, 1.27))
pad19 = body18.newObject("PartDesign::Pad", "Pad018")
pad19.Profile = sketch23
pad19.Length = 1.6
pad19.Reversed = True
body19 = doc.addObject("PartDesign::Body", "Body018")

# Sketch on XY plane
sketch24 = body19.newObject("Sketcher::SketchObject", "Sketch023")
sketch24.AttachmentSupport = (doc.getObject("XY_Plane018"), [""])
sketch24.MapMode = "FlatFace"
sketch24.AttachmentOffset = App.Placement(Vector(0, 0, 0.8), App.Rotation())
sketch24.addGeometry(Part.Circle(Vector(47, -1.3, 0), Vector(0, 0, 1), 0.8), False)
sketch24.addGeometry(Part.Circle(Vector(47, -1.3, 0), Vector(0, 0, 1), 0.5), False)
sketch24.addConstraint(Sketcher.Constraint("Coincident", 1, 3, 0, 3))
sketch24.addConstraint(Sketcher.Constraint("Diameter", 1, 1.0))
sketch24.addConstraint(Sketcher.Constraint("Diameter", 0, 1.7))
sketch24.addConstraint(Sketcher.Constraint("DistanceX", -1, 1, 0, 3, 47.0))
sketch24.addConstraint(Sketcher.Constraint("DistanceY", 0, 3, -1, 1, 1.27))
pad20 = body19.newObject("PartDesign::Pad", "Pad019")
pad20.Profile = sketch24
pad20.Length = 1.6
pad20.Reversed = True
body20 = doc.addObject("PartDesign::Body", "Body019")

# Sketch on XY plane
sketch25 = body20.newObject("Sketcher::SketchObject", "Sketch024")
sketch25.AttachmentSupport = (doc.getObject("XY_Plane019"), [""])
sketch25.MapMode = "FlatFace"
sketch25.AttachmentOffset = App.Placement(Vector(0, 0, 0.8), App.Rotation())
sketch25.addGeometry(Part.Circle(Vector(47, -3.8, 0), Vector(0, 0, 1), 0.8), False)
sketch25.addGeometry(Part.Circle(Vector(47, -3.8, 0), Vector(0, 0, 1), 0.5), False)
sketch25.addConstraint(Sketcher.Constraint("Coincident", 1, 3, 0, 3))
sketch25.addConstraint(Sketcher.Constraint("Diameter", 1, 1.0))
sketch25.addConstraint(Sketcher.Constraint("Diameter", 0, 1.7))
sketch25.addConstraint(Sketcher.Constraint("DistanceX", -1, 1, 0, 3, 47.0))
sketch25.addConstraint(Sketcher.Constraint("DistanceY", 0, 3, -1, 1, 3.81))
pad21 = body20.newObject("PartDesign::Pad", "Pad020")
pad21.Profile = sketch25
pad21.Length = 1.6
pad21.Reversed = True
body21 = doc.addObject("PartDesign::Body", "Body020")

# Sketch on XY plane
sketch26 = body21.newObject("Sketcher::SketchObject", "Sketch025")
sketch26.AttachmentSupport = (doc.getObject("XY_Plane020"), [""])
sketch26.MapMode = "FlatFace"
add_polygon(sketch26, [(-47.9, 17.4), (-47.9, 15.7), (-46.1, 15.7), (-46.1, 17.4)])  # lines 0-3
sketch26.addGeometry(Part.Circle(Vector(-47, 16.5, 0), Vector(0, 0, 1), 0.5), False)  # 4
sketch26.addConstraint(Sketcher.Constraint("Vertical", 0))
sketch26.addConstraint(Sketcher.Constraint("Horizontal", 1))
sketch26.addConstraint(Sketcher.Constraint("Vertical", 2))
sketch26.addConstraint(Sketcher.Constraint("Horizontal", 3))
sketch26.addConstraint(Sketcher.Constraint("Equal", 3, 0))
sketch26.addConstraint(Sketcher.Constraint("Diameter", 4, 1.0))
sketch26.addConstraint(Sketcher.Constraint("DistanceX", 1, 1, 1, 2, 1.7))
sketch26.addConstraint(Sketcher.Constraint("DistanceX", 4, 3, -1, 1, 47.0))
sketch26.addConstraint(Sketcher.Constraint("DistanceY", -1, 1, 4, 3, 16.51))
sketch26.addConstraint(Sketcher.Constraint("DistanceX", 0, 2, -1, 1, 47.85))
sketch26.addConstraint(Sketcher.Constraint("DistanceY", -1, 1, 0, 2, 15.66))
pad22 = body21.newObject("PartDesign::Pad", "Pad021")
pad22.Profile = sketch26
pad22.Length = 1.62
pad22.Midplane = True
body22 = doc.addObject("PartDesign::Body", "Body021")

# Sketch on XY plane
sketch27 = body22.newObject("Sketcher::SketchObject", "Sketch026")
sketch27.AttachmentSupport = (doc.getObject("XY_Plane021"), [""])
sketch27.MapMode = "FlatFace"
add_polygon(sketch27, [(46.1, 4.7), (46.1, 3), (47.9, 3), (47.9, 4.7)])  # lines 0-3
sketch27.addGeometry(Part.Circle(Vector(47, 3.8, 0), Vector(0, 0, 1), 0.5), False)  # 4
sketch27.addConstraint(Sketcher.Constraint("Vertical", 0))
sketch27.addConstraint(Sketcher.Constraint("Horizontal", 1))
sketch27.addConstraint(Sketcher.Constraint("Vertical", 2))
sketch27.addConstraint(Sketcher.Constraint("Horizontal", 3))
sketch27.addConstraint(Sketcher.Constraint("Equal", 3, 0))
sketch27.addConstraint(Sketcher.Constraint("Diameter", 4, 1.0))
sketch27.addConstraint(Sketcher.Constraint("DistanceX", 1, 1, 1, 2, 1.7))
sketch27.addConstraint(Sketcher.Constraint("DistanceX", -1, 1, 4, 3, 47.0))
sketch27.addConstraint(Sketcher.Constraint("DistanceY", -1, 1, 4, 3, 3.81))
sketch27.addConstraint(Sketcher.Constraint("DistanceX", -1, 1, 0, 2, 46.15))
sketch27.addConstraint(Sketcher.Constraint("DistanceY", -1, 1, 0, 2, 2.96))
pad23 = body22.newObject("PartDesign::Pad", "Pad022")
pad23.Profile = sketch27
pad23.Length = 1.62
pad23.Midplane = True

doc.recompute()
